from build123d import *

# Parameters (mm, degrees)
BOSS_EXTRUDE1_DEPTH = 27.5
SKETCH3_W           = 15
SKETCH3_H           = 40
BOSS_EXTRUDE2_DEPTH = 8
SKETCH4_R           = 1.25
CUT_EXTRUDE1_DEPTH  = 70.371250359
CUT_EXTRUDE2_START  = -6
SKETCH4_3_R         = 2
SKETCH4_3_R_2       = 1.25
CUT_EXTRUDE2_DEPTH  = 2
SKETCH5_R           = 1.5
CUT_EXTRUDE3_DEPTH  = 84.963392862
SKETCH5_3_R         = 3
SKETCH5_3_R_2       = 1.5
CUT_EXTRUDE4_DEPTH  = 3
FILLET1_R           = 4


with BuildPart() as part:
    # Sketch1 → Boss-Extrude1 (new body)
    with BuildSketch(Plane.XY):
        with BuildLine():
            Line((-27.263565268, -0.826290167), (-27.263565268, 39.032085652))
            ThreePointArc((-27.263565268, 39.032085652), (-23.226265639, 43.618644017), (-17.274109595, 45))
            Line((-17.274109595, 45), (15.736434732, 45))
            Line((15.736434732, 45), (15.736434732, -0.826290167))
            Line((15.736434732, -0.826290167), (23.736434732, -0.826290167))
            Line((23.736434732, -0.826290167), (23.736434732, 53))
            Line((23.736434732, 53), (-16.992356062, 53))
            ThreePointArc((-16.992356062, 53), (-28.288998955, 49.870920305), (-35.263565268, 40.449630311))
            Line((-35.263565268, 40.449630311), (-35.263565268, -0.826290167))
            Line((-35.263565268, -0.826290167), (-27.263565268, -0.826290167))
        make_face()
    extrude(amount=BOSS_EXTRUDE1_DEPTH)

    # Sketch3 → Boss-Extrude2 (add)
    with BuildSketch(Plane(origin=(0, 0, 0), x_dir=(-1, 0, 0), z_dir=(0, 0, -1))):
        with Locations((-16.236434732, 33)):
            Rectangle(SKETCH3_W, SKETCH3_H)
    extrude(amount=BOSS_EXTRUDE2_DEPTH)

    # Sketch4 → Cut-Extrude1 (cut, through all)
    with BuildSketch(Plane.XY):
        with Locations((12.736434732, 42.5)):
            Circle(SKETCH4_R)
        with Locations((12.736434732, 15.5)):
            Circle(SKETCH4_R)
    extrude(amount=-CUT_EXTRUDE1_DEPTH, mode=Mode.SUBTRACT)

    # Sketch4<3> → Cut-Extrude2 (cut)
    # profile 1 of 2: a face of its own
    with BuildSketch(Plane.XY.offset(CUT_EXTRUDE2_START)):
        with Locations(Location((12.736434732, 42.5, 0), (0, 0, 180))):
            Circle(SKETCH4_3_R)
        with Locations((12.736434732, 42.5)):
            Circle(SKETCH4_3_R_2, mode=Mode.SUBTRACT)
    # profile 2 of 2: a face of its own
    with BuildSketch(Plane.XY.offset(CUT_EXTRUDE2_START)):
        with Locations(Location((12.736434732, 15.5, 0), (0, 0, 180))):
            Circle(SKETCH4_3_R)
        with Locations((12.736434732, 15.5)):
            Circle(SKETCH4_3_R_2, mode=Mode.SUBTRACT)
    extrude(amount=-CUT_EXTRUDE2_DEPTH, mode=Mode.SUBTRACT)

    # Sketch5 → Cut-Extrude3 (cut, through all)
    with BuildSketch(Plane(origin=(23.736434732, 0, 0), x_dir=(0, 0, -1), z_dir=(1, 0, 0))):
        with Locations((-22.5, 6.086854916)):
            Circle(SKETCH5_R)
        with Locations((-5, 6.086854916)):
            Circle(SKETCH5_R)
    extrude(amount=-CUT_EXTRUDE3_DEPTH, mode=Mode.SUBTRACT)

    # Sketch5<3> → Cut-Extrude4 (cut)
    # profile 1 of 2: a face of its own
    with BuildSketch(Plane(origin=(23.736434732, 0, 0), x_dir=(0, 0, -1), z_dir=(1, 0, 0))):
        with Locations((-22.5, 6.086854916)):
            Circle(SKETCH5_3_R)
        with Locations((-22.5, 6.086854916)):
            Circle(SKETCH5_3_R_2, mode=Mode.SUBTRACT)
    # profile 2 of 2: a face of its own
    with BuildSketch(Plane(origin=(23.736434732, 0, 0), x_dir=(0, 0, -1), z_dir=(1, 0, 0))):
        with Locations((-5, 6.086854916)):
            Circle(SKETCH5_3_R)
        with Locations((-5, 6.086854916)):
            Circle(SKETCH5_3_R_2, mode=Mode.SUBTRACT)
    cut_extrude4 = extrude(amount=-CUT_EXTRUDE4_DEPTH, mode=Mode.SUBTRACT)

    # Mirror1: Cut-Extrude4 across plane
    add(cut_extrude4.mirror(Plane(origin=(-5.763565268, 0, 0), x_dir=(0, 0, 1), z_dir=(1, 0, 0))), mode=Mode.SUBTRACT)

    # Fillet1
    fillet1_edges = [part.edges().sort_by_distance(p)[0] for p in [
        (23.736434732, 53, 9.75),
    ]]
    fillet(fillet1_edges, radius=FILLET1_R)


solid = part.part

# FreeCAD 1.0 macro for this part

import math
import FreeCAD as App
import Part
import Sketcher
Q = App.Units.Quantity


def edges_at(feature, points):
    """Names of the edges that pass closest to the given points."""
    edges = feature.Shape.Edges
    near = lambda p: min(range(len(edges)), key=lambda i: edges[i].distToShape(Part.Vertex(*p))[0])
    return sorted({f"Edge{near(p) + 1}" for p in points})


def add_polygon(sketch, points):
    """Adds a closed chain of lines whose ends are joined by coincident constraints."""
    first, n = sketch.GeometryCount, len(points)
    for a, b in zip(points, points[1:] + points[:1]):
        sketch.addGeometry(Part.LineSegment(App.Vector(*a, 0), App.Vector(*b, 0)), False)
    for i in range(n):
        sketch.addConstraint(Sketcher.Constraint("Coincident", first + i, 2, first + (i + 1) % n, 1))

doc = App.newDocument("Part")
body = doc.addObject("PartDesign::Body", "Body")

# Sketch on XY plane
sketch1 = body.newObject("Sketcher::SketchObject", "Sketch")
sketch1.AttachmentSupport = (doc.getObject("XY_Plane"), [""])
sketch1.MapMode = "FlatFace"
sketch1.addGeometry(Part.LineSegment(App.Vector(-27, -1, 0), App.Vector(-27, 39, 0)), False)
sketch1.addGeometry(Part.ArcOfCircle(Part.Circle(App.Vector(-18, 35, 0), App.Vector(0, 0, 1), 10), math.radians(85), math.radians(156)), False)
sketch1.addGeometry(Part.LineSegment(App.Vector(-17, 45, 0), App.Vector(16, 45, 0)), False)
sketch1.addGeometry(Part.LineSegment(App.Vector(16, 45, 0), App.Vector(16, -1, 0)), False)
sketch1.addGeometry(Part.LineSegment(App.Vector(16, -1, 0), App.Vector(24, -1, 0)), False)
sketch1.addGeometry(Part.LineSegment(App.Vector(24, -1, 0), App.Vector(24, 53, 0)), False)
sketch1.addGeometry(Part.LineSegment(App.Vector(24, 53, 0), App.Vector(-17, 53, 0)), False)
sketch1.addGeometry(Part.ArcOfCircle(Part.Circle(App.Vector(-18, 35, 0), App.Vector(0, 0, 1), 18), math.radians(86), math.radians(162)), False)
sketch1.addGeometry(Part.LineSegment(App.Vector(-35, 40, 0), App.Vector(-35, -1, 0)), False)
sketch1.addGeometry(Part.LineSegment(App.Vector(-35, -1, 0), App.Vector(-27, -1, 0)), False)
sketch1.addConstraint(Sketcher.Constraint("Coincident", 0, 2, 1, 2))
sketch1.addConstraint(Sketcher.Constraint("Coincident", 1, 1, 2, 1))
sketch1.addConstraint(Sketcher.Constraint("Coincident", 2, 2, 3, 1))
sketch1.addConstraint(Sketcher.Constraint("Coincident", 3, 2, 4, 1))
sketch1.addConstraint(Sketcher.Constraint("Coincident", 4, 2, 5, 1))
sketch1.addConstraint(Sketcher.Constraint("Coincident", 5, 2, 6, 1))
sketch1.addConstraint(Sketcher.Constraint("Coincident", 6, 2, 7, 1))
sketch1.addConstraint(Sketcher.Constraint("Coincident", 7, 2, 8, 1))
sketch1.addConstraint(Sketcher.Constraint("Coincident", 8, 2, 9, 1))
sketch1.addConstraint(Sketcher.Constraint("Coincident", 9, 2, 0, 1))
sketch1.addConstraint(Sketcher.Constraint("Vertical", 0))
sketch1.addConstraint(Sketcher.Constraint("Horizontal", 2))
sketch1.addConstraint(Sketcher.Constraint("Vertical", 3))
sketch1.addConstraint(Sketcher.Constraint("Horizontal", 4))
sketch1.addConstraint(Sketcher.Constraint("Vertical", 5))
sketch1.addConstraint(Sketcher.Constraint("Horizontal", 6))
sketch1.addConstraint(Sketcher.Constraint("Vertical", 8))
sketch1.addConstraint(Sketcher.Constraint("Horizontal", 9))
sketch1.addConstraint(Sketcher.Constraint("Coincident", 7, 3, 1, 3))
sketch1.addConstraint(Sketcher.Constraint("Horizontal", 4, 2, 8, 2))
sketch1.addConstraint(Sketcher.Constraint("Equal", 4, 9))
sketch1.addConstraint(Sketcher.Constraint("Radius", 1, Q("10 mm")))
sketch1.addConstraint(Sketcher.Constraint("Radius", 7, Q("18 mm")))
sketch1.addConstraint(Sketcher.Constraint("DistanceX", 4, 1, 4, 2, Q("8 mm")))
sketch1.addConstraint(Sketcher.Constraint("DistanceY", -1, 1, 1, 1, Q("45 mm")))
sketch1.addConstraint(Sketcher.Constraint("DistanceY", -1, 1, 5, 2, Q("53 mm")))
sketch1.addConstraint(Sketcher.Constraint("DistanceX", 0, 2, 2, 2, Q("43 mm")))
sketch1.addConstraint(Sketcher.Constraint("DistanceX", 6, 2, 6, 1, Q("40.728791 mm")))
sketch1.addConstraint(Sketcher.Constraint("DistanceY", 3, 2, 3, 1, Q("45.82629 mm")))
sketch1.addConstraint(Sketcher.Constraint("DistanceY", 8, 2, 8, 1, Q("41.27592 mm")))
sketch1.addConstraint(Sketcher.Constraint("DistanceX", 1, 1, -1, 1, Q("17.27411 mm")))
pad1 = body.newObject("PartDesign::Pad", "Pad")
pad1.Profile = sketch1
pad1.Length = 27.5

# Sketch on XY plane
sketch2 = body.newObject("Sketcher::SketchObject", "Sketch001")
sketch2.AttachmentSupport = (doc.getObject("XY_Plane"), [""])
sketch2.MapMode = "FlatFace"
add_polygon(sketch2, [(24, 53), (24, 13), (9, 13), (9, 53)])  # lines 0-3
sketch2.addConstraint(Sketcher.Constraint("Vertical", 0))
sketch2.addConstraint(Sketcher.Constraint("Horizontal", 1))
sketch2.addConstraint(Sketcher.Constraint("Vertical", 2))
sketch2.addConstraint(Sketcher.Constraint("Horizontal", 3))
sketch2.addConstraint(Sketcher.Constraint("DistanceX", 1, 2, 1, 1, Q("15 mm")))
sketch2.addConstraint(Sketcher.Constraint("DistanceY", 0, 2, 0, 1, Q("40 mm")))
sketch2.addConstraint(Sketcher.Constraint("DistanceY", -1, 1, 0, 2, Q("13 mm")))
sketch2.addConstraint(Sketcher.Constraint("DistanceX", -1, 1, 0, 2, Q("23.736435 mm")))
pad2 = body.newObject("PartDesign::Pad", "Pad001")
pad2.Profile = sketch2
pad2.Length = 8
pad2.Reversed = True

# Sketch on XY plane
sketch3 = body.newObject("Sketcher::SketchObject", "Sketch002")
sketch3.AttachmentSupport = (doc.getObject("XY_Plane"), [""])
sketch3.MapMode = "FlatFace"
sketch3.addGeometry(Part.Circle(App.Vector(12.7, 42.5, 0), App.Vector(0, 0, 1), 1.2), False)
sketch3.addGeometry(Part.Circle(App.Vector(12.7, 15.5, 0), App.Vector(0, 0, 1), 1.2), False)
sketch3.addConstraint(Sketcher.Constraint("Equal", 0, 1))
sketch3.addConstraint(Sketcher.Constraint("Vertical", 0, 3, 1, 3))
sketch3.addConstraint(Sketcher.Constraint("Diameter", 0, Q("2.5 mm")))
sketch3.addConstraint(Sketcher.Constraint("DistanceY", 1, 3, 0, 3, Q("27 mm")))
sketch3.addConstraint(Sketcher.Constraint("DistanceY", -1, 1, 0, 3, Q("42.5 mm")))
sketch3.addConstraint(Sketcher.Constraint("DistanceX", -1, 1, 0, 3, Q("12.736435 mm")))
pocket1 = body.newObject("PartDesign::Pocket", "Pocket")
pocket1.Profile = sketch3
pocket1.Type = "ThroughAll"

# Sketch on XY plane
sketch4 = body.newObject("Sketcher::SketchObject", "Sketch003")
sketch4.AttachmentSupport = (doc.getObject("XY_Plane"), [""])
sketch4.MapMode = "FlatFace"
sketch4.AttachmentOffset = App.Placement(App.Vector(0, 0, -6), App.Rotation())
sketch4.addGeometry(Part.Circle(App.Vector(12.7, 42.5, 0), App.Vector(0, 0, 1), 2), False)
sketch4.addGeometry(Part.Circle(App.Vector(12.7, 42.5, 0), App.Vector(0, 0, 1), 1.2), False)
sketch4.addGeometry(Part.Circle(App.Vector(12.7, 15.5, 0), App.Vector(0, 0, 1), 2), False)
sketch4.addGeometry(Part.Circle(App.Vector(12.7, 15.5, 0), App.Vector(0, 0, 1), 1.2), False)
sketch4.addConstraint(Sketcher.Constraint("Coincident", 1, 3, 0, 3))
sketch4.addConstraint(Sketcher.Constraint("Coincident", 3, 3, 2, 3))
sketch4.addConstraint(Sketcher.Constraint("Equal", 0, 2))
sketch4.addConstraint(Sketcher.Constraint("Equal", 1, 3))
sketch4.addConstraint(Sketcher.Constraint("Vertical", 1, 3, 2, 3))
sketch4.addConstraint(Sketcher.Constraint("Diameter", 0, Q("4 mm")))
sketch4.addConstraint(Sketcher.Constraint("Diameter", 1, Q("2.5 mm")))
sketch4.addConstraint(Sketcher.Constraint("DistanceY", 2, 3, 0, 3, Q("27 mm")))
sketch4.addConstraint(Sketcher.Constraint("DistanceY", -1, 1, 0, 3, Q("42.5 mm")))
sketch4.addConstraint(Sketcher.Constraint("DistanceX", -1, 1, 0, 3, Q("12.736435 mm")))
pocket2 = body.newObject("PartDesign::Pocket", "Pocket001")
pocket2.Profile = sketch4
pocket2.Length = 2

# Sketch on YZ plane
sketch5 = body.newObject("Sketcher::SketchObject", "Sketch004")
sketch5.AttachmentSupport = (doc.getObject("YZ_Plane"), [""])
sketch5.MapMode = "FlatFace"
sketch5.AttachmentOffset = App.Placement(App.Vector(0, 0, 23.736435), App.Rotation())
sketch5.addGeometry(Part.Circle(App.Vector(6.1, 22.5, 0), App.Vector(0, 0, 1), 1.5), False)
sketch5.addGeometry(Part.Circle(App.Vector(6.1, 5, 0), App.Vector(0, 0, 1), 1.5), False)
sketch5.addConstraint(Sketcher.Constraint("Equal", 0, 1))
sketch5.addConstraint(Sketcher.Constraint("Vertical", 0, 3, 1, 3))
sketch5.addConstraint(Sketcher.Constraint("Diameter", 0, Q("3 mm")))
sketch5.addConstraint(Sketcher.Constraint("DistanceY", -1, 1, 1, 3, Q("5 mm")))
sketch5.addConstraint(Sketcher.Constraint("DistanceY", -1, 1, 0, 3, Q("22.5 mm")))
sketch5.addConstraint(Sketcher.Constraint("DistanceX", -1, 1, 0, 3, Q("6.086855 mm")))
pocket3 = body.newObject("PartDesign::Pocket", "Pocket002")
pocket3.Profile = sketch5
pocket3.Type = "ThroughAll"

# Sketch on YZ plane
sketch6 = body.newObject("Sketcher::SketchObject", "Sketch005")
sketch6.AttachmentSupport = (doc.getObject("YZ_Plane"), [""])
sketch6.MapMode = "FlatFace"
sketch6.AttachmentOffset = App.Placement(App.Vector(0, 0, 23.736435), App.Rotation())
sketch6.addGeometry(Part.Circle(App.Vector(6.1, 22.5, 0), App.Vector(0, 0, 1), 3), False)
sketch6.addGeometry(Part.Circle(App.Vector(6.1, 22.5, 0), App.Vector(0, 0, 1), 1.5), False)
sketch6.addGeometry(Part.Circle(App.Vector(6.1, 5, 0), App.Vector(0, 0, 1), 3), False)
sketch6.addGeometry(Part.Circle(App.Vector(6.1, 5, 0), App.Vector(0, 0, 1), 1.5), False)
sketch6.addConstraint(Sketcher.Constraint("Coincident", 1, 3, 0, 3))
sketch6.addConstraint(Sketcher.Constraint("Coincident", 3, 3, 2, 3))
sketch6.addConstraint(Sketcher.Constraint("Equal", 0, 2))
sketch6.addConstraint(Sketcher.Constraint("Equal", 1, 3))
sketch6.addConstraint(Sketcher.Constraint("Vertical", 1, 3, 2, 3))
sketch6.addConstraint(Sketcher.Constraint("Diameter", 0, Q("6 mm")))
sketch6.addConstraint(Sketcher.Constraint("Diameter", 1, Q("3 mm")))
sketch6.addConstraint(Sketcher.Constraint("DistanceY", -1, 1, 2, 3, Q("5 mm")))
sketch6.addConstraint(Sketcher.Constraint("DistanceY", -1, 1, 0, 3, Q("22.5 mm")))
sketch6.addConstraint(Sketcher.Constraint("DistanceX", -1, 1, 0, 3, Q("6.086855 mm")))
pocket4 = body.newObject("PartDesign::Pocket", "Pocket003")
pocket4.Profile = sketch6
pocket4.Length = 3
doc.recompute()

datumplane = body.newObject("PartDesign::Plane", "DatumPlane")
datumplane.AttachmentSupport = (doc.getObject("YZ_Plane"), [""])
datumplane.MapMode = "FlatFace"
datumplane.AttachmentOffset = App.Placement(App.Vector(0, 0, -5.763565), App.Rotation())
mirrored = body.newObject("PartDesign::Mirrored", "Mirrored")
mirrored.Originals = [pocket4]
mirrored.MirrorPlane = (datumplane, [""])
body.Tip = mirrored
doc.recompute()

fillet = body.newObject("PartDesign::Fillet", "Fillet")
fillet.Base = (mirrored, edges_at(mirrored, [(23.736, 53, 9.75)]))
fillet.Radius = 4

doc.recompute()
